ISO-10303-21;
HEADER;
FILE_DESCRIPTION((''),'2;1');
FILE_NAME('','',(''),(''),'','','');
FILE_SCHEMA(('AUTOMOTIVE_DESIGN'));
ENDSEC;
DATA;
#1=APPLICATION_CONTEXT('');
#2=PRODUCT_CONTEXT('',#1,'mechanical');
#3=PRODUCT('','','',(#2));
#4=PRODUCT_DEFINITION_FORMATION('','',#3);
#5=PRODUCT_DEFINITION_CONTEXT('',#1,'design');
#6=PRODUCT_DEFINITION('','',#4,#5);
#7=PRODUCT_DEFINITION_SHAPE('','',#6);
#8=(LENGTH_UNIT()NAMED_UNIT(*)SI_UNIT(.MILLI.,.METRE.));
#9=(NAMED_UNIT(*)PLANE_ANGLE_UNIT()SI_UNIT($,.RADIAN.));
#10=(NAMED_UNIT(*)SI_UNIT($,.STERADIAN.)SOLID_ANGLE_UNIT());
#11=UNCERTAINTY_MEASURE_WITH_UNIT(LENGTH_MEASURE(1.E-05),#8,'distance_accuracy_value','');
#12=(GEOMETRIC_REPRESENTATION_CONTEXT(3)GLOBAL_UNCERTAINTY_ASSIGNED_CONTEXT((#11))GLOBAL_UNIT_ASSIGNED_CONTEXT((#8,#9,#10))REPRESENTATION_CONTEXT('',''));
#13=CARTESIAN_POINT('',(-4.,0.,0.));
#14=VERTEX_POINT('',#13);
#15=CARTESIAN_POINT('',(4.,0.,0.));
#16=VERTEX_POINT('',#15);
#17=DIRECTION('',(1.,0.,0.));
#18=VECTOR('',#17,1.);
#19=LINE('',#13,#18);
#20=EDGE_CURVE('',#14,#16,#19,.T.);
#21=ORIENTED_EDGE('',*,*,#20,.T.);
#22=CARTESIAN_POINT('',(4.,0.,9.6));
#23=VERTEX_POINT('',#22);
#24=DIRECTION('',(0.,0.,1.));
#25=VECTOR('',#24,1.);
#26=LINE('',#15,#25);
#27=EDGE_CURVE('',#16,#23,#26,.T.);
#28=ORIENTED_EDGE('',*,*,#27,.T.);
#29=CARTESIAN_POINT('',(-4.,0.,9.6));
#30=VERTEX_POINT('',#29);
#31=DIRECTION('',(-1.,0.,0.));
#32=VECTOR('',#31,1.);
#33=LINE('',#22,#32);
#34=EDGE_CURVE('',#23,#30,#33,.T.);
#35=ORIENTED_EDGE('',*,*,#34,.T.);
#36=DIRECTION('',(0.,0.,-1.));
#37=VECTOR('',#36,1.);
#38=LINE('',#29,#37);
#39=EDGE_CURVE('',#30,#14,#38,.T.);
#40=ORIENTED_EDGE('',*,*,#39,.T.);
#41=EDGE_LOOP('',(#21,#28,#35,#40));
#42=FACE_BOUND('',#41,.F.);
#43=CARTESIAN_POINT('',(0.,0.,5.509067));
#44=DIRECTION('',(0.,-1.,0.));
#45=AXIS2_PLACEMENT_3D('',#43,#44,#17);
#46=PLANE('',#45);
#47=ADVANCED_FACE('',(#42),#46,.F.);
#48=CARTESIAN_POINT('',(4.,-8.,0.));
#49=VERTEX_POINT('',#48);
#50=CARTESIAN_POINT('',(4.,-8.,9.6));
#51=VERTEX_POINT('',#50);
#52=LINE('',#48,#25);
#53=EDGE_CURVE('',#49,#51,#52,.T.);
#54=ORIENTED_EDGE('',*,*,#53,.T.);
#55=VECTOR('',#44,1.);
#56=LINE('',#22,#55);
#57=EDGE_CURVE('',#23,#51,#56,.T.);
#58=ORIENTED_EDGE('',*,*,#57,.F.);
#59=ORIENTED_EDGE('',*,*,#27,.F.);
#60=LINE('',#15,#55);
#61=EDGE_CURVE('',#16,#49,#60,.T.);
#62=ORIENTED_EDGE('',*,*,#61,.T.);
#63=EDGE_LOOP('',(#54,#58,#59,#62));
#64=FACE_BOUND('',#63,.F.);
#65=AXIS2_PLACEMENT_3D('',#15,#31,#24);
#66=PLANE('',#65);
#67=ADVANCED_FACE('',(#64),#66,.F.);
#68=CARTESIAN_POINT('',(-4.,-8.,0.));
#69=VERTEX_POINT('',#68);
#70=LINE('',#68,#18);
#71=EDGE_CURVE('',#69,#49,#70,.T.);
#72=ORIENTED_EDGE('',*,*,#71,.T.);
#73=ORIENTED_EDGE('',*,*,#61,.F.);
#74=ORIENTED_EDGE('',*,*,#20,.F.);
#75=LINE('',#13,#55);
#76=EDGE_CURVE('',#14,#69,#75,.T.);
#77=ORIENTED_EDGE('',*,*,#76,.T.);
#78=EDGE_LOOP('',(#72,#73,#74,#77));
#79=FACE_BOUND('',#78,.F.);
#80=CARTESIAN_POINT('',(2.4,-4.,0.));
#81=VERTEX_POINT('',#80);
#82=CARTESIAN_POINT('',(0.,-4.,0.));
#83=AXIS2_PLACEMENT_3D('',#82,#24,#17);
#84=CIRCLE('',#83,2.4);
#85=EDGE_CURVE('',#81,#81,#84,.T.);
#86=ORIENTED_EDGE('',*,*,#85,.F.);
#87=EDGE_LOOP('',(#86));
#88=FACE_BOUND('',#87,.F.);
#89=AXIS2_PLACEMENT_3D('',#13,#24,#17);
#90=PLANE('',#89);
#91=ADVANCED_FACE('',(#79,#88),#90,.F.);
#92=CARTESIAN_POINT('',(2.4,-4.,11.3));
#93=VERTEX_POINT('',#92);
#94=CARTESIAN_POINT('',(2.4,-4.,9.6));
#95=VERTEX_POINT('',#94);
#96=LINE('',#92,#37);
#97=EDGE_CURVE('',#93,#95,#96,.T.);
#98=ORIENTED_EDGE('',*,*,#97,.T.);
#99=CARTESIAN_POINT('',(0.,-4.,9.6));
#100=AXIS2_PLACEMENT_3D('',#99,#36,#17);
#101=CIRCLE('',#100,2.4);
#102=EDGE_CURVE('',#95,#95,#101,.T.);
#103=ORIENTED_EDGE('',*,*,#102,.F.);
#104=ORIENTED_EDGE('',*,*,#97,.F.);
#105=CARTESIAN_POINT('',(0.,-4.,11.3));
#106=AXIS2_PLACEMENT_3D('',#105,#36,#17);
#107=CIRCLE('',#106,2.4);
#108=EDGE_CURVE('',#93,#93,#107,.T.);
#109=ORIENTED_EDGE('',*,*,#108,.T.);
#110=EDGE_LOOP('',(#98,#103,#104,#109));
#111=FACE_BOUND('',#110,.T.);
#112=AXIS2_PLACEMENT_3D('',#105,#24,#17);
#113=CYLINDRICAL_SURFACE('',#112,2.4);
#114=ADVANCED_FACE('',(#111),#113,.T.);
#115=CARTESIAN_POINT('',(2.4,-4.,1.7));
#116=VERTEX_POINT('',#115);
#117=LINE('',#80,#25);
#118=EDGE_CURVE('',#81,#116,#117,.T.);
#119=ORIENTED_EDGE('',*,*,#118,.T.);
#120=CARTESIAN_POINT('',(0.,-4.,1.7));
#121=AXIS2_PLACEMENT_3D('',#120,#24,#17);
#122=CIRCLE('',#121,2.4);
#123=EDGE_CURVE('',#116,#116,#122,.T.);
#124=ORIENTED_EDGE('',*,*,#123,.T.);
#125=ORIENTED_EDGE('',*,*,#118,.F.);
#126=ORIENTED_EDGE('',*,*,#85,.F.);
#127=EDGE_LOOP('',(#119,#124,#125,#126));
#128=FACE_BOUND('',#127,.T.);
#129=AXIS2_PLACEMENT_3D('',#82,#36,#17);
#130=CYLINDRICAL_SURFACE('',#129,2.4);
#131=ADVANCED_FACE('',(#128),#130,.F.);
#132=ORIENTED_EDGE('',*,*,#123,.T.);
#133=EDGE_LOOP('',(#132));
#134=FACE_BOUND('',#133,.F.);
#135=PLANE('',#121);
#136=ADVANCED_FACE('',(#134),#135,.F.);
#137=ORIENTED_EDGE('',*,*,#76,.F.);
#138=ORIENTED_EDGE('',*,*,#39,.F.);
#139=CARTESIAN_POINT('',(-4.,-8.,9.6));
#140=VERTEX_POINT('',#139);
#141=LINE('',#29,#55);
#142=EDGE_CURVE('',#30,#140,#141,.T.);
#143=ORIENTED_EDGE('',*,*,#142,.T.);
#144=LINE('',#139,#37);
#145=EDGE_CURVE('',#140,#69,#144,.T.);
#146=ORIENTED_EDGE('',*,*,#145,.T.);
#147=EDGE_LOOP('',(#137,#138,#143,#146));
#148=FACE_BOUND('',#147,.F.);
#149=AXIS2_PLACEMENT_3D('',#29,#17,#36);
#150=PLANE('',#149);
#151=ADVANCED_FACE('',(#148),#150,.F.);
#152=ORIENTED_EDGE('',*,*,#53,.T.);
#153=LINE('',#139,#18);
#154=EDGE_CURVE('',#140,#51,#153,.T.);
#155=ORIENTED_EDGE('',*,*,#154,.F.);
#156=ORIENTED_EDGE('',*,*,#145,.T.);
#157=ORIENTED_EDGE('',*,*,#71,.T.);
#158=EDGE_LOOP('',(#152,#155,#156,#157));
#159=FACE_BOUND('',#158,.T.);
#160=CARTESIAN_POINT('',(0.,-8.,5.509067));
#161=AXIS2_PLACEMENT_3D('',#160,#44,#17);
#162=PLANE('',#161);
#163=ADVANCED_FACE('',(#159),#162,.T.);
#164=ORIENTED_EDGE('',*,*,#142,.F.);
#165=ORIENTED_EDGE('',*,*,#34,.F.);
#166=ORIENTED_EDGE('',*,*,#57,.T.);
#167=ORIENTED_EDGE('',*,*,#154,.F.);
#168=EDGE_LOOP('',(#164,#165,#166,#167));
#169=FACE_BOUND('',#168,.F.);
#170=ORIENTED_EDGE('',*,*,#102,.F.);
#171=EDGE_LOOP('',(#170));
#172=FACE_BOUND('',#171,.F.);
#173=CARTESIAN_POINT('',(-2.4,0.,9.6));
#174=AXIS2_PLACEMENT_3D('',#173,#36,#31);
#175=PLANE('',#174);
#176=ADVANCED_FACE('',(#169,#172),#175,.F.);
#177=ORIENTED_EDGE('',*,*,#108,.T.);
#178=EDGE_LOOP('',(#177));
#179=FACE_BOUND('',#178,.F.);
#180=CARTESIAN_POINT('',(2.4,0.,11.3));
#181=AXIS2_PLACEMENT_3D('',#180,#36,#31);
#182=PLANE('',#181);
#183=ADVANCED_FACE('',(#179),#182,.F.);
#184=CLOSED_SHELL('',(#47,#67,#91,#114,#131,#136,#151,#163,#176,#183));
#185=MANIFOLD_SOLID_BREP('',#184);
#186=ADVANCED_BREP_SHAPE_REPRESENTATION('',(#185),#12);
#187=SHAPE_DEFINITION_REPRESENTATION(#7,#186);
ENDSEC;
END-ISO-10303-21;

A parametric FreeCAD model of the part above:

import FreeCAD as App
import Part
import Sketcher


def add_polygon(sketch, points):
    """Adds a closed chain of lines whose ends are joined by coincident constraints."""
    first, n = sketch.GeometryCount, len(points)
    for a, b in zip(points, points[1:] + points[:1]):
        sketch.addGeometry(Part.LineSegment(App.Vector(*a, 0), App.Vector(*b, 0)), False)
    for i in range(n):
        sketch.addConstraint(Sketcher.Constraint("Coincident", first + i, 2, first + (i + 1) % n, 1))

doc = App.newDocument("Part")
body = doc.addObject("PartDesign::Body", "Body")

sketch1 = body.newObject("Sketcher::SketchObject", "Sketch")
sketch1.AttachmentSupport = (doc.getObject("XZ_Plane"), [""])
sketch1.MapMode = "FlatFace"
add_polygon(sketch1, [(-2.4, 9.6), (-4, 9.6), (-4, 0), (4, 0), (4, 9.6), (2.4, 9.6), (2.4, 11.3), (-2.4, 11.3)])
sketch1.addConstraint([
    Sketcher.Constraint("Horizontal", 0),
    Sketcher.Constraint("Vertical", 1),
    Sketcher.Constraint("Horizontal", 2),
    Sketcher.Constraint("Vertical", 3),
    Sketcher.Constraint("Horizontal", 4),
    Sketcher.Constraint("Vertical", 5),
    Sketcher.Constraint("Horizontal", 6),
    Sketcher.Constraint("Vertical", 7),
    Sketcher.Constraint("Symmetric", 1, 2, 2, 2, -1, 1),
    Sketcher.Constraint("Symmetric", 4, 2, 7, 2, -2),
    Sketcher.Constraint("DistanceX", 2, 1, 2, 2, 8.0),
    Sketcher.Constraint("DistanceX", 0, 2, 0, 1, 1.6),
    Sketcher.Constraint("DistanceY", 1, 2, 1, 1, 9.6),
    Sketcher.Constraint("DistanceY", 5, 1, 5, 2, 1.7),
])
pad1 = body.newObject("PartDesign::Pad", "Pad")
pad1.Profile = sketch1
pad1.Length = 8

sketch2 = body.newObject("Sketcher::SketchObject", "Sketch001")
sketch2.AttachmentSupport = (doc.getObject("XY_Plane"), [""])
sketch2.MapMode = "FlatFace"
sketch2.AttachmentOffset = App.Placement(App.Vector(0, 0, 11.3), App.Rotation())
add_polygon(sketch2, [(-4, 0), (-4, -8), (4, -8), (4, 0)])
sketch2.addGeometry(Part.Circle(App.Vector(0, -4, 0), App.Vector(0, 0, 1), 2.4), False)
sketch2.addConstraint([
    Sketcher.Constraint("Vertical", 0),
    Sketcher.Constraint("Horizontal", 1),
    Sketcher.Constraint("Vertical", 2),
    Sketcher.Constraint("Horizontal", 3),
    Sketcher.Constraint("Symmetric", 2, 2, 3, 2, -1, 1),
    Sketcher.Constraint("PointOnObject", 4, 3, -2),
    Sketcher.Constraint("Equal", 3, 0),
    Sketcher.Constraint("Diameter", 4, 4.8),
    Sketcher.Constraint("DistanceX", 1, 1, 1, 2, 8.0),
    Sketcher.Constraint("DistanceY", 4, 3, -1, 1, 4.0),
])
pocket1 = body.newObject("PartDesign::Pocket", "Pocket")
pocket1.Profile = sketch2
pocket1.Length = 1.7

sketch3 = body.newObject("Sketcher::SketchObject", "Sketch002")
sketch3.AttachmentSupport = (doc.getObject("XY_Plane"), [""])
sketch3.MapMode = "FlatFace"
sketch3.addGeometry(Part.Circle(App.Vector(0, -4, 0), App.Vector(0, 0, 1), 2.4), False)
sketch3.addConstraint([
    Sketcher.Constraint("PointOnObject", 0, 3, -2),
    Sketcher.Constraint("Diameter", 0, 4.8),
    Sketcher.Constraint("DistanceY", 0, 3, -1, 1, 4.0),
])
pocket2 = body.newObject("PartDesign::Pocket", "Pocket001")
pocket2.Profile = sketch3
pocket2.Length = 1.7
pocket2.Reversed = True

doc.recompute()
